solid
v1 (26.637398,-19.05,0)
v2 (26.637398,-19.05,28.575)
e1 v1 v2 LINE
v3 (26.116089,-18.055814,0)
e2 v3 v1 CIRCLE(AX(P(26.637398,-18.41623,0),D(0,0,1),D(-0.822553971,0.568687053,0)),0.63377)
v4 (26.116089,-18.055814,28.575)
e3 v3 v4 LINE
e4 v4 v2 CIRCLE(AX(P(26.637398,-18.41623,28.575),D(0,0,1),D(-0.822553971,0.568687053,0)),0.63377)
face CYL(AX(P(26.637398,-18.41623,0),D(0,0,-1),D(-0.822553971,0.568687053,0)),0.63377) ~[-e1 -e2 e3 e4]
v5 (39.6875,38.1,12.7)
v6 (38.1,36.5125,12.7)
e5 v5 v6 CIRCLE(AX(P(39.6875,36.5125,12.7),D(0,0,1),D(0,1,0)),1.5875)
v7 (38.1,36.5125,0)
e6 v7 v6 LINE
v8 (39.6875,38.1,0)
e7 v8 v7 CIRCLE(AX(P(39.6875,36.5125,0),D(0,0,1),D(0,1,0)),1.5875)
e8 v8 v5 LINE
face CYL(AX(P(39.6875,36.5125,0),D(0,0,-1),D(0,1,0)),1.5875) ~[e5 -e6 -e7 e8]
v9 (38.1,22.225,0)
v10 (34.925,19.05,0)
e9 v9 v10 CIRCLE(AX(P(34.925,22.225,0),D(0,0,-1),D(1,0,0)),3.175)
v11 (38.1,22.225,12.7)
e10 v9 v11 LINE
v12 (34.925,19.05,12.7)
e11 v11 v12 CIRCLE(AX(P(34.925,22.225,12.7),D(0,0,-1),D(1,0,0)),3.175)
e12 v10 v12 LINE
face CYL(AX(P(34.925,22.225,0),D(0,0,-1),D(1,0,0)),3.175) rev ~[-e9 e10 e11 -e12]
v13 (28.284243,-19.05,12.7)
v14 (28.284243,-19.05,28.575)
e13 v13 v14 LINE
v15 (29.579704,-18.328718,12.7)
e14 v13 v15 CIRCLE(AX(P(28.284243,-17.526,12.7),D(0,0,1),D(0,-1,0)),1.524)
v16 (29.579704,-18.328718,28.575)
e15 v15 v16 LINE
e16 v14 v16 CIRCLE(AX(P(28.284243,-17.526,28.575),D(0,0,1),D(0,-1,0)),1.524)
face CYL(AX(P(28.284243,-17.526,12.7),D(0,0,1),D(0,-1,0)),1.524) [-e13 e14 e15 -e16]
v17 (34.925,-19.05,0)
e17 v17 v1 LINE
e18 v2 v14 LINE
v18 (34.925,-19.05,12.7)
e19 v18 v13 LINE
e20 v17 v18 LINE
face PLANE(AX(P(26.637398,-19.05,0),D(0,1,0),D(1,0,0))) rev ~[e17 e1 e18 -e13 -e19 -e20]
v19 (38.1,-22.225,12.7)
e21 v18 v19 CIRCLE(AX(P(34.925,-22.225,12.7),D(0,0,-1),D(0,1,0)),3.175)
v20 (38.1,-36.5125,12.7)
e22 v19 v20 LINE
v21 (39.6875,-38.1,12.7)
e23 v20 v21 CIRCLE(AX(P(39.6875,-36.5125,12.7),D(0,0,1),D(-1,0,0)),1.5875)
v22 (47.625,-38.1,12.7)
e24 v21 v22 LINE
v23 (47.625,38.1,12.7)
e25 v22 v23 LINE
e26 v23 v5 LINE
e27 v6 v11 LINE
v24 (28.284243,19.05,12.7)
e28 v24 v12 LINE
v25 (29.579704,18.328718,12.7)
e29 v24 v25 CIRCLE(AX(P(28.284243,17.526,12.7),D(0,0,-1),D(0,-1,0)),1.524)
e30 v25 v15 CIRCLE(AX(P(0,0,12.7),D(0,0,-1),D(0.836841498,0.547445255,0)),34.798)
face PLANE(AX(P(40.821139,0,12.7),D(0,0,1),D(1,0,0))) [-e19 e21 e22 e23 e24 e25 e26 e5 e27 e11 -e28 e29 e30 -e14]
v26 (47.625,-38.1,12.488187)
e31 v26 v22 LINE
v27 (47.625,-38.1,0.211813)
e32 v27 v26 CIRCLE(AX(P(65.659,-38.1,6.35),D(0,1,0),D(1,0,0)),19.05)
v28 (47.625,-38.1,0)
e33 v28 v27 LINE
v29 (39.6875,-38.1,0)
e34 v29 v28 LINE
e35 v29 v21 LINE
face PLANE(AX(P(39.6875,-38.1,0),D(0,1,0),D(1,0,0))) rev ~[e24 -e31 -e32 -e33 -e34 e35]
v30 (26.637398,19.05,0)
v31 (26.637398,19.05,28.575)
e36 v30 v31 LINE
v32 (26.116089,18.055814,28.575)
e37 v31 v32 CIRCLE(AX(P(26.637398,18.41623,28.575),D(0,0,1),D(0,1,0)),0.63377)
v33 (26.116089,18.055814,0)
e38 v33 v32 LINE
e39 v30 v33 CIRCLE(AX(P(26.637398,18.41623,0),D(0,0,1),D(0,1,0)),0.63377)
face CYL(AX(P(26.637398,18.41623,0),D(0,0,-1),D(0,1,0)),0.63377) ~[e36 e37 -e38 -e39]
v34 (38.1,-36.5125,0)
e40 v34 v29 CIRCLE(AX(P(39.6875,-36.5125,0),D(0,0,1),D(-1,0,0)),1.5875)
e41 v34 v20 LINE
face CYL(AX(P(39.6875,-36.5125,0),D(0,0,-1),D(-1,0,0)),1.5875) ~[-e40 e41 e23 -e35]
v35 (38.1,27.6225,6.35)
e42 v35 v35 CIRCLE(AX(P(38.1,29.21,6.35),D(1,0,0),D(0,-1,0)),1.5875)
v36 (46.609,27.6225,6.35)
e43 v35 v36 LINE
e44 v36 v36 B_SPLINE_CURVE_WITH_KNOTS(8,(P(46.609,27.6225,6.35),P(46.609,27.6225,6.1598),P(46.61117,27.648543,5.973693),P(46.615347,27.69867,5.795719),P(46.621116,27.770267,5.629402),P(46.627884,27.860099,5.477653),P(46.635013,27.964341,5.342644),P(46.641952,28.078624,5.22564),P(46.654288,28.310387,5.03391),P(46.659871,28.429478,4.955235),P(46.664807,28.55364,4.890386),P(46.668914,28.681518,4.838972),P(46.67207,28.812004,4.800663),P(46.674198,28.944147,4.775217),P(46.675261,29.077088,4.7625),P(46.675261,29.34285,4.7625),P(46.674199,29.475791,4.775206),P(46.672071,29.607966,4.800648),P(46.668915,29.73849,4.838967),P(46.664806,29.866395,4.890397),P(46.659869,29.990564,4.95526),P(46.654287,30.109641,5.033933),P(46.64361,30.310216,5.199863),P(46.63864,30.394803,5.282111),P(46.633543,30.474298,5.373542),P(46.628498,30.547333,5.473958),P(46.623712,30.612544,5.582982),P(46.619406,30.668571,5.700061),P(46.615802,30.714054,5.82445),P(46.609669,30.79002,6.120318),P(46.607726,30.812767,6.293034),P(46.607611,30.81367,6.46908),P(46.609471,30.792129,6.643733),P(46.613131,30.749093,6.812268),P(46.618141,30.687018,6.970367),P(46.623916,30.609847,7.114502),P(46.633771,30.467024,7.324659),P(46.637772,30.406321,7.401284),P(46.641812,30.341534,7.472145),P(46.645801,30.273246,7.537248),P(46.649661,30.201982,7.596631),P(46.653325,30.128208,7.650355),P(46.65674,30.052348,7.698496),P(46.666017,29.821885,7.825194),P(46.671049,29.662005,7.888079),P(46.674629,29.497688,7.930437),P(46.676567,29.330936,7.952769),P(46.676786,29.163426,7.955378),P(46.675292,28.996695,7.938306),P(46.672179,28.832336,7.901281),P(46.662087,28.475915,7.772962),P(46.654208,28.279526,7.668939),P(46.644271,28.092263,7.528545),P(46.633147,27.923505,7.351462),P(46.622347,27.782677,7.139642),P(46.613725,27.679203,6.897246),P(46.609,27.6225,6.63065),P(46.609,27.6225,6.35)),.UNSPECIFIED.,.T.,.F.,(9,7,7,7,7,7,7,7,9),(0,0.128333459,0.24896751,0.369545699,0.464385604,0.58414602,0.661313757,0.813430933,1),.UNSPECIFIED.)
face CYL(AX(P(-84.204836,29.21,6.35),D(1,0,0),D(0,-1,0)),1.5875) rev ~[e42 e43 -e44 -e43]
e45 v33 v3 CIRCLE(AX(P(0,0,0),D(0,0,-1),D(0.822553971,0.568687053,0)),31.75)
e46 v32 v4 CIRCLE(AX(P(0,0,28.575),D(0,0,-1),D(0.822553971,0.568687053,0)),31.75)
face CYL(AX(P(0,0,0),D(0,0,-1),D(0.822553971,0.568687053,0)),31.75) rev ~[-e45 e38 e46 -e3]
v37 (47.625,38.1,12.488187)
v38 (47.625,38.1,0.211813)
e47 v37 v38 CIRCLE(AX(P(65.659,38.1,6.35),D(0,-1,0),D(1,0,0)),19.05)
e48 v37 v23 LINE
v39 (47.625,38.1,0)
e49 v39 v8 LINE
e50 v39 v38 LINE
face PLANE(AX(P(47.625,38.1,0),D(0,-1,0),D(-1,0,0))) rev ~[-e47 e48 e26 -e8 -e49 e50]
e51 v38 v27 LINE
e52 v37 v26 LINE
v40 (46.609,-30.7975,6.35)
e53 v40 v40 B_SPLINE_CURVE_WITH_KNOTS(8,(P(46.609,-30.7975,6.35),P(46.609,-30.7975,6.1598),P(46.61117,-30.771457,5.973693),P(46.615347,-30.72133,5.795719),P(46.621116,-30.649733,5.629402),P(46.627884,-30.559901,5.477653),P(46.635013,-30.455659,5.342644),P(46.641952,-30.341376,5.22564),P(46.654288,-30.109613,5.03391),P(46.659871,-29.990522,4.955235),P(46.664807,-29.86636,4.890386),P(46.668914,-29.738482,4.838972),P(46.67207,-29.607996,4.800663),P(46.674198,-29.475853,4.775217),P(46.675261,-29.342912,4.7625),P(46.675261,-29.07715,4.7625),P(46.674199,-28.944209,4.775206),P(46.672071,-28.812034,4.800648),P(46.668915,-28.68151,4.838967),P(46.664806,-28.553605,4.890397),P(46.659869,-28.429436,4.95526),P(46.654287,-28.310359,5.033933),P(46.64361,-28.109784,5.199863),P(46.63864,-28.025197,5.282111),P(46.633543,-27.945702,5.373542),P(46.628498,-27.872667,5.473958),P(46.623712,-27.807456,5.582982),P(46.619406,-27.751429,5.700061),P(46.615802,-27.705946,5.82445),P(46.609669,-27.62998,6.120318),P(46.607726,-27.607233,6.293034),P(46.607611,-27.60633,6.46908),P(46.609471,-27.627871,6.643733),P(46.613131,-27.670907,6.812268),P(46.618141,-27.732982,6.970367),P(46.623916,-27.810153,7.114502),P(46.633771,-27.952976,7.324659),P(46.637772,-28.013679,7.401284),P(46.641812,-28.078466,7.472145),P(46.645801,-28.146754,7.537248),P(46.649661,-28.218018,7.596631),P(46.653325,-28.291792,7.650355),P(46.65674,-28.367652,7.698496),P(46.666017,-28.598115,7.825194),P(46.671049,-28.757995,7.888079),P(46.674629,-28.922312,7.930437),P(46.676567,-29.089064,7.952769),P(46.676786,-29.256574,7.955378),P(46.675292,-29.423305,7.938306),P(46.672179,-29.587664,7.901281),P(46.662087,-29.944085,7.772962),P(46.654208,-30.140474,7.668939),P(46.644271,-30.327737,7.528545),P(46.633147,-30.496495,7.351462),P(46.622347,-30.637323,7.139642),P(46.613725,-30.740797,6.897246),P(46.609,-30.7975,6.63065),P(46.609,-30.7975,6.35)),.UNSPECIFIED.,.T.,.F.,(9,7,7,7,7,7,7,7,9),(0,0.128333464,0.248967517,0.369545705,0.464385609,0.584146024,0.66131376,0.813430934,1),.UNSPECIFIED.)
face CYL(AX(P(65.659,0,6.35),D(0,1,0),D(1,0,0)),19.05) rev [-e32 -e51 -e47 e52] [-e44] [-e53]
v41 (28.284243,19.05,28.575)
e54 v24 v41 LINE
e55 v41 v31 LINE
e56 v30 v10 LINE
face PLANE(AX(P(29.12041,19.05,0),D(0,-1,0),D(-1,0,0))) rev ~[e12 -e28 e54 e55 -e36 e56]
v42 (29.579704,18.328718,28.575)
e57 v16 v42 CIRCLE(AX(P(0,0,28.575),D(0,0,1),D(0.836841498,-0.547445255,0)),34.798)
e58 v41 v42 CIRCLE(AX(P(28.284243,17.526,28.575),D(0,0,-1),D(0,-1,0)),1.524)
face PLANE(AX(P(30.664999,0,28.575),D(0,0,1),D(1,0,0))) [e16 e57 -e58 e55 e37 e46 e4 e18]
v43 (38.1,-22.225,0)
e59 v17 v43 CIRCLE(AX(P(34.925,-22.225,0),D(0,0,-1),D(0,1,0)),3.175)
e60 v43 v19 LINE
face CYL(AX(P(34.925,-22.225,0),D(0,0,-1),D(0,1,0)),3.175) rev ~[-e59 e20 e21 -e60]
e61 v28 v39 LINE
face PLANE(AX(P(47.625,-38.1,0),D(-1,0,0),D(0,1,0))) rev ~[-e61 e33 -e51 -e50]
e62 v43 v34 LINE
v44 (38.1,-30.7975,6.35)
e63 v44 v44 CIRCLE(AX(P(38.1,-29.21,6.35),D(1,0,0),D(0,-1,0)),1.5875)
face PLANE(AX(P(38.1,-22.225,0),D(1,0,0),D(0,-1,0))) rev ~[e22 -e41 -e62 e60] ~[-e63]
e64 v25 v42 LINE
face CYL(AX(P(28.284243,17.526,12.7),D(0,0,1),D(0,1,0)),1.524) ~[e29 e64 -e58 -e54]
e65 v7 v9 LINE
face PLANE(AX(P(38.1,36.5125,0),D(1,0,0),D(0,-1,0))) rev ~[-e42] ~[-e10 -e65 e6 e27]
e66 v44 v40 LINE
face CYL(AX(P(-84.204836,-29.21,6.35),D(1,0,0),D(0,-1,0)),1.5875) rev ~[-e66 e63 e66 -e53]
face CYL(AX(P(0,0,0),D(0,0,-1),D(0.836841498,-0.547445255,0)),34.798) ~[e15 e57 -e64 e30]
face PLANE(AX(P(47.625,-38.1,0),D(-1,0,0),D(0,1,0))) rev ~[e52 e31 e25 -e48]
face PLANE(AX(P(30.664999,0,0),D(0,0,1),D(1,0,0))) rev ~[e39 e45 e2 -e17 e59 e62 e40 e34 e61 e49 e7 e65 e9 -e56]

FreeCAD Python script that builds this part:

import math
import FreeCAD as App
import Part
import Sketcher

V = App.Vector
Q = App.Units.Quantity


def edges_at(feature, points):
    """Names of the edges that pass closest to the given points."""
    edges = feature.Shape.Edges
    near = lambda p: min(range(len(edges)), key=lambda i: edges[i].distToShape(Part.Vertex(*p))[0])
    return sorted({f"Edge{near(p) + 1}" for p in points})

doc = App.newDocument("Part")
body = doc.addObject("PartDesign::Body", "Body")

sketch1 = doc.addObject("Sketcher::SketchObject", "Sketch")
body.addObject(sketch1)
sketch1.AttachmentSupport = (doc.XY_Plane, [""])
sketch1.MapMode = "FlatFace"
sketch1.addGeometry([
    Part.ArcOfCircle(Part.Circle(V(0, 0, 0), V(0, 0, 1), 34.8), math.radians(-33), math.radians(33)),
    Part.LineSegment(V(29.1, -19.1, 0), V(34.9, -19.1, 0)),
    Part.ArcOfCircle(Part.Circle(V(34.9, -22.2, 0), V(0, 0, 1), 3.2), math.radians(0), math.radians(90)),
    Part.LineSegment(V(38.1, -22.2, 0), V(38.1, -36.5, 0)),
    Part.ArcOfCircle(Part.Circle(V(39.7, -36.5, 0), V(0, 0, 1), 1.6), math.radians(180), math.radians(270)),
    Part.LineSegment(V(39.7, -38.1, 0), V(47.6, -38.1, 0)),
    Part.LineSegment(V(47.6, -38.1, 0), V(47.6, 38.1, 0)),
    Part.LineSegment(V(47.6, 38.1, 0), V(39.7, 38.1, 0)),
    Part.ArcOfCircle(Part.Circle(V(39.7, 36.5, 0), V(0, 0, 1), 1.6), math.radians(90), math.radians(180)),
    Part.LineSegment(V(38.1, 36.5, 0), V(38.1, 22.2, 0)),
    Part.ArcOfCircle(Part.Circle(V(34.9, 22.2, 0), V(0, 0, 1), 3.2), math.radians(-90), math.radians(0)),
    Part.LineSegment(V(34.9, 19.1, 0), V(29.1, 19.1, 0)),
], False)
sketch1.addConstraint([
    Sketcher.Constraint("Coincident", 0, 1, 1, 1),
    Sketcher.Constraint("Tangent", 1, 2, 2, 2),
    Sketcher.Constraint("Tangent", 2, 1, 3, 1),
    Sketcher.Constraint("Tangent", 3, 2, 4, 1),
    Sketcher.Constraint("Tangent", 4, 2, 5, 1),
    Sketcher.Constraint("Coincident", 5, 2, 6, 1),
    Sketcher.Constraint("Coincident", 6, 2, 7, 1),
    Sketcher.Constraint("Tangent", 7, 2, 8, 1),
    Sketcher.Constraint("Tangent", 8, 2, 9, 1),
    Sketcher.Constraint("Tangent", 9, 2, 10, 2),
    Sketcher.Constraint("Tangent", 10, 1, 11, 1),
    Sketcher.Constraint("Coincident", 11, 2, 0, 2),
    Sketcher.Constraint("Horizontal", 1),
    Sketcher.Constraint("Vertical", 3),
    Sketcher.Constraint("Horizontal", 5),
    Sketcher.Constraint("Vertical", 6),
    Sketcher.Constraint("Horizontal", 7),
    Sketcher.Constraint("Vertical", 9),
    Sketcher.Constraint("Horizontal", 11),
    Sketcher.Constraint("Coincident", 0, 3, -1, 1),
    Sketcher.Constraint("Equal", 4, 8),
    Sketcher.Constraint("Equal", 2, 10),
    Sketcher.Constraint("Symmetric", 4, 3, 8, 3, -1),
    Sketcher.Constraint("Vertical", 0, 1, 11, 2),
    Sketcher.Constraint("DistanceY", 6, 1, 6, 2, Q("3 in")),
    Sketcher.Constraint("Radius", 0, Q("1.37 in")),
    Sketcher.Constraint("Radius", 2, Q("0.125 in")),
    Sketcher.Constraint("Radius", 4, Q("0.0625 in")),
    Sketcher.Constraint("DistanceX", -1, 1, 2, 1, Q("1.5 in")),
    Sketcher.Constraint("DistanceX", 2, 3, 5, 2, Q("0.5 in")),
    Sketcher.Constraint("DistanceY", 3, 2, 3, 1, Q("0.5625 in")),
])
pad1 = doc.addObject("PartDesign::Pad", "Pad")
body.addObject(pad1)
pad1.Profile = sketch1
pad1.Length = Q("0.5 in")

sketch2 = doc.addObject("Sketcher::SketchObject", "Sketch001")
body.addObject(sketch2)
sketch2.AttachmentSupport = (doc.XY_Plane, [""])
sketch2.MapMode = "FlatFace"
sketch2.addGeometry([
    Part.ArcOfCircle(Part.Circle(V(0, 0, 0), V(0, 0, 1), 31.8), math.radians(-35), math.radians(35)),
    Part.ArcOfCircle(Part.Circle(V(26.6, -18.4, 0), V(0, 0, 1), 0.6), math.radians(145), math.radians(270)),
    Part.LineSegment(V(26.6, -19.1, 0), V(29.1, -19.1, 0)),
    Part.ArcOfCircle(Part.Circle(V(0, 0, 0), V(0, 0, 1), 34.8), math.radians(-33), math.radians(33)),
    Part.LineSegment(V(29.1, 19.1, 0), V(26.6, 19.1, 0)),
    Part.ArcOfCircle(Part.Circle(V(26.6, 18.4, 0), V(0, 0, 1), 0.6), math.radians(90), math.radians(215)),
], False)
sketch2.addConstraint([
    Sketcher.Constraint("Tangent", 0, 1, 1, 1),
    Sketcher.Constraint("Tangent", 1, 2, 2, 1),
    Sketcher.Constraint("Coincident", 2, 2, 3, 1),
    Sketcher.Constraint("Coincident", 3, 2, 4, 1),
    Sketcher.Constraint("Tangent", 4, 2, 5, 1),
    Sketcher.Constraint("Tangent", 5, 2, 0, 2),
    Sketcher.Constraint("Horizontal", 2),
    Sketcher.Constraint("Horizontal", 4),
    Sketcher.Constraint("Coincident", 0, 3, -1, 1),
    Sketcher.Constraint("Coincident", 3, 3, -1, 1),
    Sketcher.Constraint("Equal", 1, 5),
    Sketcher.Constraint("Vertical", 1, 3, 5, 3),
    Sketcher.Constraint("Radius", 0, Q("1.25 in")),
    Sketcher.Constraint("Radius", 3, Q("1.37 in")),
    Sketcher.Constraint("DistanceY", 1, 2, -1, 1, Q("0.75 in")),
    Sketcher.Constraint("Radius", 1, 0.63377),
])
pad2 = doc.addObject("PartDesign::Pad", "Pad001")
body.addObject(pad2)
pad2.Profile = sketch2
pad2.Length = Q("1.125 in")

sketch3 = doc.addObject("Sketcher::SketchObject", "Sketch002")
body.addObject(sketch3)
sketch3.AttachmentSupport = (doc.YZ_Plane, [""])
sketch3.MapMode = "FlatFace"
sketch3.addGeometry(Part.Circle(V(-29.2, 6.3, 0), V(0, 0, 1), 1.6), False)
sketch3.addConstraint([
    Sketcher.Constraint("Diameter", 0, Q("0.125 in")),
    Sketcher.Constraint("DistanceX", 0, 3, -1, 1, Q("1.15 in")),
    Sketcher.Constraint("DistanceY", -1, 1, 0, 3, Q("0.25 in")),
])
doc.recompute()
hole = doc.addObject("PartDesign::Hole", "Hole")
body.addObject(hole)
hole.Profile = sketch3
hole.ThreadType = "None"
hole.Diameter = Q("0.125 in")
hole.DepthType = "ThroughAll"
hole.Reversed = True

sketch4 = doc.addObject("Sketcher::SketchObject", "Sketch003")
body.addObject(sketch4)
sketch4.AttachmentSupport = (doc.YZ_Plane, [""])
sketch4.MapMode = "FlatFace"
sketch4.addGeometry(Part.Circle(V(29.2, 6.3, 0), V(0, 0, 1), 1.6), False)
sketch4.addConstraint([
    Sketcher.Constraint("Diameter", 0, Q("0.125 in")),
    Sketcher.Constraint("DistanceX", -1, 1, 0, 3, Q("1.15 in")),
    Sketcher.Constraint("DistanceY", -1, 1, 0, 3, Q("0.25 in")),
])
doc.recompute()
hole2 = doc.addObject("PartDesign::Hole", "Hole001")
body.addObject(hole2)
hole2.Profile = sketch4
hole2.ThreadType = "None"
hole2.Diameter = Q("0.125 in")
hole2.DepthType = "ThroughAll"
hole2.Reversed = True

sketch5 = doc.addObject("Sketcher::SketchObject", "Sketch004")
body.addObject(sketch5)
sketch5.AttachmentSupport = (doc.XZ_Plane, [""])
sketch5.MapMode = "FlatFace"
sketch5.addGeometry(Part.Circle(V(66, 6, 0), V(0, 0, 1), 19), False)
sketch5.addConstraint([
    Sketcher.Constraint("Diameter", 0, Q("1.5 in")),
    Sketcher.Constraint("DistanceY", -1, 1, 0, 3, Q("0.25 in")),
    Sketcher.Constraint("DistanceX", -1, 1, 0, 3, Q("2.585 in")),
])
pocket1 = doc.addObject("PartDesign::Pocket", "Pocket")
body.addObject(pocket1)
pocket1.Profile = sketch5
pocket1.Type = "ThroughAll"
pocket1.Midplane = True
doc.recompute()

fillet = doc.addObject("PartDesign::Fillet", "Fillet")
body.addObject(fillet)
fillet.Base = (pocket1, edges_at(pocket1, [(29.12, 19.05, 20.637)]))
fillet.Radius = Q("0.06 in")
doc.recompute()

fillet2 = doc.addObject("PartDesign::Fillet", "Fillet001")
body.addObject(fillet2)
fillet2.Base = (fillet, edges_at(fillet, [(29.12, -19.05, 20.637)]))
fillet2.Radius = Q("0.06 in")

doc.recompute()
